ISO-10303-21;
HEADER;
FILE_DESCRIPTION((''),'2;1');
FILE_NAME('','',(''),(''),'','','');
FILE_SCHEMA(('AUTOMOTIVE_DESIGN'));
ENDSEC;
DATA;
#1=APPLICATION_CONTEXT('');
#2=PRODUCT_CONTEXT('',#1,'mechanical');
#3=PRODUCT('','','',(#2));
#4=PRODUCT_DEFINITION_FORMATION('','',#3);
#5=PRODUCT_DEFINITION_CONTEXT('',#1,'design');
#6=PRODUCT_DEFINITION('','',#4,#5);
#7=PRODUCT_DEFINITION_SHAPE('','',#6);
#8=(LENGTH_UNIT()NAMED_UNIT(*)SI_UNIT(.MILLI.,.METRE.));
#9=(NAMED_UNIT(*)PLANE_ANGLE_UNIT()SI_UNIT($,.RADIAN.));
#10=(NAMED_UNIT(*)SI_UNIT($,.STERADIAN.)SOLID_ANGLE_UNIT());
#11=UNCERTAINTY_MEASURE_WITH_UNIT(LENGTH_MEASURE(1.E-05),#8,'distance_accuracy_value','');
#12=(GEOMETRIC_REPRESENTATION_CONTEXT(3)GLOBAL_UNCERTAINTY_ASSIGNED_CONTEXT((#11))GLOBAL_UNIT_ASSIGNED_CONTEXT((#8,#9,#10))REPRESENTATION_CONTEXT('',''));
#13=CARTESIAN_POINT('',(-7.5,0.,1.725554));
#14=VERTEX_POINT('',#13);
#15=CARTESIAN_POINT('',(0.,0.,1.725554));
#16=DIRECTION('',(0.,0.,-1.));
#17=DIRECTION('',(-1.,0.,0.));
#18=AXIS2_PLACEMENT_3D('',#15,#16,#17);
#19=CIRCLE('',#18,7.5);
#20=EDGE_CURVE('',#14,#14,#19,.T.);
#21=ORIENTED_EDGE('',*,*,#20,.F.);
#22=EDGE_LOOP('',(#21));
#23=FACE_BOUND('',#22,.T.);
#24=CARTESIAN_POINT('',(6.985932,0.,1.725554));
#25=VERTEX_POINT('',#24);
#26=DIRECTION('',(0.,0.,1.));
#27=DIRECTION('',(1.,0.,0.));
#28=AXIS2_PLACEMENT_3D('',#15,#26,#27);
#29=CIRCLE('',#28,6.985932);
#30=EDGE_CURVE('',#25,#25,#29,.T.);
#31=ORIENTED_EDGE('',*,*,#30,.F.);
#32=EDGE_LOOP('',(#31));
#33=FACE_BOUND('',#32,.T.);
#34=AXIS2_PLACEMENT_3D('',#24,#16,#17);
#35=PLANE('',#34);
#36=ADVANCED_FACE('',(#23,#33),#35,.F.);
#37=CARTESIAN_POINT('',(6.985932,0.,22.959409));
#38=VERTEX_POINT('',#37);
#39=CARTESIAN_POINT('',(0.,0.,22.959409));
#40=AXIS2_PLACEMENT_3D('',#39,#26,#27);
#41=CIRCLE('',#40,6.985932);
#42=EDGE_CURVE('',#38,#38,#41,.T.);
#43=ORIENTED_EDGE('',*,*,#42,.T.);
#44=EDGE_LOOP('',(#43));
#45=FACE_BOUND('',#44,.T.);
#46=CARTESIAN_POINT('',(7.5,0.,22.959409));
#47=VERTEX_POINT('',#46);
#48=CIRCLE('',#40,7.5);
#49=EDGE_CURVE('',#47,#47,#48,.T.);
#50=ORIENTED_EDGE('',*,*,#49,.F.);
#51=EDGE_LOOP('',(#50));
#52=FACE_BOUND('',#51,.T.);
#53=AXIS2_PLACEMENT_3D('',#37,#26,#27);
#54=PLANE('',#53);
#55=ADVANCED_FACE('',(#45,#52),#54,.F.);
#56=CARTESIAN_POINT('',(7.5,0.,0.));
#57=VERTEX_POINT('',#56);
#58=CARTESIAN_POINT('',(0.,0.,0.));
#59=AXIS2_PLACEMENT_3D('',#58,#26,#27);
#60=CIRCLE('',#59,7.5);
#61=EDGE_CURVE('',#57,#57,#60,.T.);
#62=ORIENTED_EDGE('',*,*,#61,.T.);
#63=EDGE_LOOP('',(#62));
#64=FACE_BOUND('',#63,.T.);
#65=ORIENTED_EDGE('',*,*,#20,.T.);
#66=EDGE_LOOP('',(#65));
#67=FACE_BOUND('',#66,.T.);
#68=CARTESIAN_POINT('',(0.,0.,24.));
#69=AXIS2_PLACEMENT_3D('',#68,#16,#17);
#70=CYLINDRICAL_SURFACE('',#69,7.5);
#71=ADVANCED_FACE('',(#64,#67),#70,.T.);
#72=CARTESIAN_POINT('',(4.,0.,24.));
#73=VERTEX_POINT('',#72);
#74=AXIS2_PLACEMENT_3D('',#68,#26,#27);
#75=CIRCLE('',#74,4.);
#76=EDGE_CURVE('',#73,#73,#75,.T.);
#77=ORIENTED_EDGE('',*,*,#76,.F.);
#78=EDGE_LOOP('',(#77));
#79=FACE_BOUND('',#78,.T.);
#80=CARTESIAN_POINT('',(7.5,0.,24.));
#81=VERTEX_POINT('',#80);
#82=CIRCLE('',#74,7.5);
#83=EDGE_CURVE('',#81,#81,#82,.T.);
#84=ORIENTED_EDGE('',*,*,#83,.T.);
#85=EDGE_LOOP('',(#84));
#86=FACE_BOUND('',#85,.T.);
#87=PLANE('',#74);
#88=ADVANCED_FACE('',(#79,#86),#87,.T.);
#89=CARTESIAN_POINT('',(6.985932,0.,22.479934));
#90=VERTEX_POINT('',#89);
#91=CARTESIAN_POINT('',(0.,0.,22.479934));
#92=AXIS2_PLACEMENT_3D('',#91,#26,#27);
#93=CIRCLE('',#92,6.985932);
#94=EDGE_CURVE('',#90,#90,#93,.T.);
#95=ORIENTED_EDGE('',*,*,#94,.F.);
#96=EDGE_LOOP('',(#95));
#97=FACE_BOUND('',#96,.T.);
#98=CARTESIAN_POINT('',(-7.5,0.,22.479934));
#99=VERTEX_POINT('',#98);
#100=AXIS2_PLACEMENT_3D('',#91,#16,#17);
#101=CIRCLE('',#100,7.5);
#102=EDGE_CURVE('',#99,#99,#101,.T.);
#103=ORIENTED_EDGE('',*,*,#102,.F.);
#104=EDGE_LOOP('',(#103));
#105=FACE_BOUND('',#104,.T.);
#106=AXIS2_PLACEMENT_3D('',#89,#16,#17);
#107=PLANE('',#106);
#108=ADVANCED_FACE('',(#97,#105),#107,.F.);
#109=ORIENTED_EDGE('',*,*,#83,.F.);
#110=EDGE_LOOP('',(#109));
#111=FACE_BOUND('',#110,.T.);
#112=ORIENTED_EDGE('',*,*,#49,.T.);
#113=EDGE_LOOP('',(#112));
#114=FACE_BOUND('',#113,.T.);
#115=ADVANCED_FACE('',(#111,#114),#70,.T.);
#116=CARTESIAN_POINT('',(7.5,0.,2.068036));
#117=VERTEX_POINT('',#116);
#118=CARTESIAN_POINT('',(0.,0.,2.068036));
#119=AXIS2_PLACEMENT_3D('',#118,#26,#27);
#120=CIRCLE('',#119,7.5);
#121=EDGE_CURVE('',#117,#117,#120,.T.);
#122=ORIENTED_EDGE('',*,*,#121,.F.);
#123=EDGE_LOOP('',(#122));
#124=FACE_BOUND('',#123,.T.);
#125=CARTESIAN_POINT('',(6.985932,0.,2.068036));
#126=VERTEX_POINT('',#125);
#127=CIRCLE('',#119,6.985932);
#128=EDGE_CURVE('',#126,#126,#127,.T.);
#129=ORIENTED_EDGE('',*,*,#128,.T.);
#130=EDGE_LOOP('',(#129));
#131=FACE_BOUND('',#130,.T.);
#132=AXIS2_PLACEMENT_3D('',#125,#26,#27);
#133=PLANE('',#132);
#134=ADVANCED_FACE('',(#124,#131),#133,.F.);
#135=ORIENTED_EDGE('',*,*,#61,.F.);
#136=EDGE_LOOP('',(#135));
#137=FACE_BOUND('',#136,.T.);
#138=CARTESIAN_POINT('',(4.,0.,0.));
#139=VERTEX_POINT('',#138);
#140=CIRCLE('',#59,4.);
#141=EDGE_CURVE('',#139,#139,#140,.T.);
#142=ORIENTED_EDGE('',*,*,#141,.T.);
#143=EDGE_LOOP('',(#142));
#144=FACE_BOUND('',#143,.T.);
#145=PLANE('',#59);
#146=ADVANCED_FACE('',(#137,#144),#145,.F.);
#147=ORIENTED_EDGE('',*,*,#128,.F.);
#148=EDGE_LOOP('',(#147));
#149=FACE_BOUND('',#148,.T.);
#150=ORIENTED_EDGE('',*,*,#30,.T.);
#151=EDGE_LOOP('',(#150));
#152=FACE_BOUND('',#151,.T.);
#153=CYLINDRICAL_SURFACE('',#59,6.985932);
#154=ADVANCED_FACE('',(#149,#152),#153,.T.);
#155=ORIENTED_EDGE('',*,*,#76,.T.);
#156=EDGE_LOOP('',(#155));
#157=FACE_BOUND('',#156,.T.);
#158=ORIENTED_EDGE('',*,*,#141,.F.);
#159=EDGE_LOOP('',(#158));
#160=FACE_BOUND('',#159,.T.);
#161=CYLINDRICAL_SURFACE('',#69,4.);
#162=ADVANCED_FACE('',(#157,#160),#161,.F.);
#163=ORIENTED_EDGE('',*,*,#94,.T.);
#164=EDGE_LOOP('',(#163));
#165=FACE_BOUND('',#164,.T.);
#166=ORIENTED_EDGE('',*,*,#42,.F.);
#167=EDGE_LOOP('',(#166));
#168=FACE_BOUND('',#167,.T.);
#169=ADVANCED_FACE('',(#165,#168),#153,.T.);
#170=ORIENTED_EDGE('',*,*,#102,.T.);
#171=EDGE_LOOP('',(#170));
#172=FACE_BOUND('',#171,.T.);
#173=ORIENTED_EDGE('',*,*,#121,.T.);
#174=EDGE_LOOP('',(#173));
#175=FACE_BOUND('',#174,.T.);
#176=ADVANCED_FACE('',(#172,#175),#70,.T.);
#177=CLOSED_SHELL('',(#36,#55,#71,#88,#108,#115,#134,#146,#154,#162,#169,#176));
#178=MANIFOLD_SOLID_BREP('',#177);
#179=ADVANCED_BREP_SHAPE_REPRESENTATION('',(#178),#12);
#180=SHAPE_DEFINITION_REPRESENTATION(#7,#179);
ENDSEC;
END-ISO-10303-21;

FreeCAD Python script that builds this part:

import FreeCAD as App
import Part
import Sketcher
Q = App.Units.Quantity


def add_polygon(sketch, points):
    """Adds a closed chain of lines whose ends are joined by coincident constraints."""
    first, n = sketch.GeometryCount, len(points)
    for a, b in zip(points, points[1:] + points[:1]):
        sketch.addGeometry(Part.LineSegment(App.Vector(*a, 0), App.Vector(*b, 0)), False)
    for i in range(n):
        sketch.addConstraint(Sketcher.Constraint("Coincident", first + i, 2, first + (i + 1) % n, 1))

doc = App.newDocument("Part")
body = doc.addObject("PartDesign::Body", "Body")

# Sketch on XY plane
sketch1 = doc.addObject("Sketcher::SketchObject", "Sketch")
body.addObject(sketch1)
sketch1.AttachmentSupport = (doc.XY_Plane, [""])
sketch1.MapMode = "FlatFace"
sketch1.addGeometry(Part.Circle(App.Vector(0, 0, 0), App.Vector(0, 0, 1), 7.5), False)
sketch1.addGeometry(Part.Circle(App.Vector(0, 0, 0), App.Vector(0, 0, 1), 4), False)
sketch1.addConstraint(Sketcher.Constraint("Coincident", 0, 3, -1, 1))
sketch1.addConstraint(Sketcher.Constraint("Coincident", 1, 3, -1, 1))
sketch1.addConstraint(Sketcher.Constraint("Diameter", 0, Q("15 mm")))
sketch1.addConstraint(Sketcher.Constraint("Diameter", 1, Q("8 mm")))
pad1 = doc.addObject("PartDesign::Pad", "Pad")
body.addObject(pad1)
pad1.Profile = sketch1
pad1.Length = 24

# Sketch on XZ plane
sketch2 = doc.addObject("Sketcher::SketchObject", "Sketch001")
body.addObject(sketch2)
sketch2.AttachmentSupport = (doc.XZ_Plane, [""])
sketch2.MapMode = "FlatFace"
add_polygon(sketch2, [(6.99, 1.73), (6.99, 2.07), (8.01, 2.07), (8.01, 1.73)])  # lines 0-3
add_polygon(sketch2, [(6.99, 22.48), (6.99, 22.96), (8.01, 22.96), (8.01, 22.48)])  # lines 4-7
sketch2.addConstraint(Sketcher.Constraint("Vertical", 0))
sketch2.addConstraint(Sketcher.Constraint("Horizontal", 1))
sketch2.addConstraint(Sketcher.Constraint("Vertical", 2))
sketch2.addConstraint(Sketcher.Constraint("Horizontal", 3))
sketch2.addConstraint(Sketcher.Constraint("Vertical", 4))
sketch2.addConstraint(Sketcher.Constraint("Horizontal", 5))
sketch2.addConstraint(Sketcher.Constraint("Vertical", 6))
sketch2.addConstraint(Sketcher.Constraint("Horizontal", 7))
sketch2.addConstraint(Sketcher.Constraint("Vertical", 3, 2, 4, 2))
sketch2.addConstraint(Sketcher.Constraint("Vertical", 2, 2, 5, 2))
sketch2.addConstraint(Sketcher.Constraint("DistanceY", 0, 1, 0, 2, Q("0.342482 mm")))
sketch2.addConstraint(Sketcher.Constraint("DistanceY", 1, 2, 6, 2, Q("20.411898 mm")))
sketch2.addConstraint(Sketcher.Constraint("DistanceX", 1, 1, 1, 2, Q("1.028135 mm")))
sketch2.addConstraint(Sketcher.Constraint("DistanceY", 4, 1, 4, 2, Q("0.479474 mm")))
sketch2.addConstraint(Sketcher.Constraint("DistanceY", -1, 1, 4, 2, Q("22.959409 mm")))
sketch2.addConstraint(Sketcher.Constraint("DistanceX", -1, 1, 0, 2, Q("6.985932 mm")))
groove = doc.addObject("PartDesign::Groove", "Groove")
body.addObject(groove)
groove.Profile = sketch2
groove.ReferenceAxis = (sketch2, ["V_Axis"])
groove.Angle = 360

doc.recompute()
